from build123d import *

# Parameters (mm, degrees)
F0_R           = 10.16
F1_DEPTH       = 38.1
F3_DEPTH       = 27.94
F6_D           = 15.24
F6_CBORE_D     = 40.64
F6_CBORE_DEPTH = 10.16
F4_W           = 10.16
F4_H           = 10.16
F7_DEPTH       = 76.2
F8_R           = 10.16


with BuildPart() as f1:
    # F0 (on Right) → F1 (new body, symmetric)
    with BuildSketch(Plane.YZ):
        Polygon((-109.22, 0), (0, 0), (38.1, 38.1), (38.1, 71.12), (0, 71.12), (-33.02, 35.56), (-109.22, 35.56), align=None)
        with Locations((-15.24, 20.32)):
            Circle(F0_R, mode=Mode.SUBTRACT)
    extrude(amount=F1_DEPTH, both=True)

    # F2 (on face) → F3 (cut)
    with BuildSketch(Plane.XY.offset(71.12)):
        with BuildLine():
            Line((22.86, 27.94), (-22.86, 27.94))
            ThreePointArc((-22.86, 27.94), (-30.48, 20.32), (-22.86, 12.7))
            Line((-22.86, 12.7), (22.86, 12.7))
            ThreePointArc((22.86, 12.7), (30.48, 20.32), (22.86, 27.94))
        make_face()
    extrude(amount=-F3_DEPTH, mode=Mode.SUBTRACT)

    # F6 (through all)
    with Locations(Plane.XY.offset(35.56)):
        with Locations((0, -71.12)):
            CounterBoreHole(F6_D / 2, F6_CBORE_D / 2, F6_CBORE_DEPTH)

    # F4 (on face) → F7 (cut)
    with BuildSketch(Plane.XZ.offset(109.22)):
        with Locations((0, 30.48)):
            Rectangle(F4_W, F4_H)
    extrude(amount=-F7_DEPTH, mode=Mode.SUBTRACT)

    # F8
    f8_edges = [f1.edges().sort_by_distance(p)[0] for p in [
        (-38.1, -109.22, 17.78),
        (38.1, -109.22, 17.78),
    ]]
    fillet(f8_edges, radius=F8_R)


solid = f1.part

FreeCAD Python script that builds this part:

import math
import FreeCAD as App
import Part
import Sketcher
Q = App.Units.Quantity


def edges_at(feature, points):
    """Names of the edges that pass closest to the given points."""
    edges = feature.Shape.Edges
    near = lambda p: min(range(len(edges)), key=lambda i: edges[i].distToShape(Part.Vertex(*p))[0])
    return sorted({f"Edge{near(p) + 1}" for p in points})

doc = App.newDocument("Part")
body = doc.addObject("PartDesign::Body", "Body")

# Sketch on YZ plane
sketch1 = body.newObject("Sketcher::SketchObject", "Sketch")
sketch1.AttachmentSupport = (doc.getObject("YZ_Plane"), [""])
sketch1.MapMode = "FlatFace"
sketch1.addGeometry([
    Part.LineSegment(App.Vector(-109.22, 0, 0), App.Vector(0, 0, 0)),  # 0
    Part.LineSegment(App.Vector(0, 0, 0), App.Vector(38.1, 38.1, 0)),  # 1
    Part.LineSegment(App.Vector(38.1, 38.1, 0), App.Vector(38.1, 71.12, 0)),  # 2
    Part.LineSegment(App.Vector(38.1, 71.12, 0), App.Vector(0, 71.12, 0)),  # 3
    Part.LineSegment(App.Vector(0, 71.12, 0), App.Vector(-33.02, 35.56, 0)),  # 4
    Part.LineSegment(App.Vector(-33.02, 35.56, 0), App.Vector(-109.22, 35.56, 0)),  # 5
    Part.LineSegment(App.Vector(-109.22, 35.56, 0), App.Vector(-109.22, 0, 0)),  # 6
    Part.Circle(App.Vector(-15.24, 20.32, 0), App.Vector(0, 0, 1), 10.16),  # 7
], False)
sketch1.addConstraint([
    Sketcher.Constraint("Coincident", 0, 2, 1, 1),
    Sketcher.Constraint("Coincident", 1, 2, 2, 1),
    Sketcher.Constraint("Coincident", 2, 2, 3, 1),
    Sketcher.Constraint("Coincident", 3, 2, 4, 1),
    Sketcher.Constraint("Coincident", 4, 2, 5, 1),
    Sketcher.Constraint("Coincident", 5, 2, 6, 1),
    Sketcher.Constraint("Coincident", 6, 2, 0, 1),
    Sketcher.Constraint("Horizontal", 0),
    Sketcher.Constraint("Vertical", 2),
    Sketcher.Constraint("Horizontal", 3),
    Sketcher.Constraint("Horizontal", 5),
    Sketcher.Constraint("Vertical", 6),
    Sketcher.Constraint("Coincident", 0, 2, -1, 1),
    Sketcher.Constraint("PointOnObject", 3, 2, -2),
    Sketcher.Constraint("Diameter", 7, Q("0.8 in")),
    Sketcher.Constraint("DistanceX", 5, 2, 5, 1, Q("3 in")),
    Sketcher.Constraint("DistanceX", 0, 1, 0, 2, Q("4.3 in")),
    Sketcher.Constraint("DistanceX", 3, 2, 3, 1, Q("1.5 in")),
    Sketcher.Constraint("DistanceY", 2, 1, 2, 2, Q("1.3 in")),
    Sketcher.Constraint("DistanceY", 6, 2, 6, 1, Q("1.4 in")),
    Sketcher.Constraint("Angle", 1, Q("45 deg")),
    Sketcher.Constraint("DistanceY", 7, 3, 2, 2, Q("2 in")),
    Sketcher.Constraint("DistanceX", 7, 3, -1, 1, Q("0.6 in")),
])
pad1 = body.newObject("PartDesign::Pad", "Pad")
pad1.Profile = sketch1
pad1.Length = Q("3 in")
pad1.Midplane = True

# Sketch on XY plane
sketch2 = body.newObject("Sketcher::SketchObject", "Sketch001")
sketch2.AttachmentSupport = (doc.getObject("XY_Plane"), [""])
sketch2.MapMode = "FlatFace"
sketch2.AttachmentOffset = App.Placement(App.Vector(0, 0, 2.8 * 25.4), App.Rotation())
sketch2.addGeometry([
    Part.LineSegment(App.Vector(22.86, 27.94, 0), App.Vector(-22.86, 27.94, 0)),
    Part.ArcOfCircle(Part.Circle(App.Vector(-22.86, 20.32, 0), App.Vector(0, 0, 1), 7.62), math.radians(90), math.radians(270)),
    Part.LineSegment(App.Vector(-22.86, 12.7, 0), App.Vector(22.86, 12.7, 0)),
    Part.ArcOfCircle(Part.Circle(App.Vector(22.86, 20.32, 0), App.Vector(0, 0, 1), 7.62), math.radians(-90), math.radians(90)),
], False)
sketch2.addConstraint([
    Sketcher.Constraint("Tangent", 0, 2, 1, 1),
    Sketcher.Constraint("Tangent", 1, 2, 2, 1),
    Sketcher.Constraint("Tangent", 2, 2, 3, 1),
    Sketcher.Constraint("Tangent", 3, 2, 0, 1),
    Sketcher.Constraint("Horizontal", 0),
    Sketcher.Constraint("Horizontal", 2),
    Sketcher.Constraint("Radius", 1, Q("0.3 in")),
    Sketcher.Constraint("DistanceX", 0, 2, 0, 1, Q("1.8 in")),
    Sketcher.Constraint("DistanceX", 1, 3, -1, 1, Q("0.9 in")),
    Sketcher.Constraint("DistanceY", -1, 1, 1, 3, Q("0.8 in")),
])
pocket1 = body.newObject("PartDesign::Pocket", "Pocket")
pocket1.Profile = sketch2
pocket1.Length = Q("1.1 in")

# Sketch on XY plane
sketch3 = body.newObject("Sketcher::SketchObject", "Sketch002")
sketch3.AttachmentSupport = (doc.getObject("XY_Plane"), [""])
sketch3.MapMode = "FlatFace"
sketch3.AttachmentOffset = App.Placement(App.Vector(0, 0, 1.4 * 25.4), App.Rotation())
sketch3.addGeometry(Part.Circle(App.Vector(0, -71.12, 0), App.Vector(0, 0, 1), 7.62), False)
sketch3.addConstraint([
    Sketcher.Constraint("PointOnObject", 0, 3, -2),
    Sketcher.Constraint("Diameter", 0, Q("0.6 in")),
    Sketcher.Constraint("DistanceY", 0, 3, -1, 1, Q("2.8 in")),
])
doc.recompute()
hole = body.newObject("PartDesign::Hole", "Hole")
hole.Profile = sketch3
hole.ThreadType = "None"
hole.Diameter = Q("0.6 in")
hole.DepthType = "ThroughAll"
hole.HoleCutType = "Counterbore"
hole.HoleCutDiameter = Q("1.6 in")
hole.HoleCutDepth = Q("0.4 in")

# Sketch on XZ plane
sketch4 = body.newObject("Sketcher::SketchObject", "Sketch003")
sketch4.AttachmentSupport = (doc.getObject("XZ_Plane"), [""])
sketch4.MapMode = "FlatFace"
sketch4.AttachmentOffset = App.Placement(App.Vector(0, 0, 4.3 * 25.4), App.Rotation())
sketch4.addGeometry([
    Part.LineSegment(App.Vector(-5.08, 35.56, 0), App.Vector(-5.08, 25.4, 0)),
    Part.LineSegment(App.Vector(-5.08, 25.4, 0), App.Vector(5.08, 25.4, 0)),
    Part.LineSegment(App.Vector(5.08, 25.4, 0), App.Vector(5.08, 35.56, 0)),
    Part.LineSegment(App.Vector(5.08, 35.56, 0), App.Vector(-5.08, 35.56, 0)),
], False)
sketch4.addConstraint([
    Sketcher.Constraint("Coincident", 0, 2, 1, 1),
    Sketcher.Constraint("Coincident", 1, 2, 2, 1),
    Sketcher.Constraint("Coincident", 2, 2, 3, 1),
    Sketcher.Constraint("Coincident", 3, 2, 0, 1),
    Sketcher.Constraint("Vertical", 0),
    Sketcher.Constraint("Horizontal", 1),
    Sketcher.Constraint("Vertical", 2),
    Sketcher.Constraint("Horizontal", 3),
    Sketcher.Constraint("Equal", 3, 0),
    Sketcher.Constraint("DistanceX", 1, 1, 1, 2, Q("0.4 in")),
    Sketcher.Constraint("DistanceY", -1, 1, 0, 2, Q("1 in")),
    Sketcher.Constraint("DistanceX", 0, 2, -1, 1, Q("0.2 in")),
])
pocket2 = body.newObject("PartDesign::Pocket", "Pocket001")
pocket2.Profile = sketch4
pocket2.Length = Q("3 in")
doc.recompute()

fillet = body.newObject("PartDesign::Fillet", "Fillet")
fillet.Base = (pocket2, edges_at(pocket2, [(-38.1, -109.22, 17.78), (38.1, -109.22, 17.78)]))
fillet.Radius = Q("0.4 in")

doc.recompute()
